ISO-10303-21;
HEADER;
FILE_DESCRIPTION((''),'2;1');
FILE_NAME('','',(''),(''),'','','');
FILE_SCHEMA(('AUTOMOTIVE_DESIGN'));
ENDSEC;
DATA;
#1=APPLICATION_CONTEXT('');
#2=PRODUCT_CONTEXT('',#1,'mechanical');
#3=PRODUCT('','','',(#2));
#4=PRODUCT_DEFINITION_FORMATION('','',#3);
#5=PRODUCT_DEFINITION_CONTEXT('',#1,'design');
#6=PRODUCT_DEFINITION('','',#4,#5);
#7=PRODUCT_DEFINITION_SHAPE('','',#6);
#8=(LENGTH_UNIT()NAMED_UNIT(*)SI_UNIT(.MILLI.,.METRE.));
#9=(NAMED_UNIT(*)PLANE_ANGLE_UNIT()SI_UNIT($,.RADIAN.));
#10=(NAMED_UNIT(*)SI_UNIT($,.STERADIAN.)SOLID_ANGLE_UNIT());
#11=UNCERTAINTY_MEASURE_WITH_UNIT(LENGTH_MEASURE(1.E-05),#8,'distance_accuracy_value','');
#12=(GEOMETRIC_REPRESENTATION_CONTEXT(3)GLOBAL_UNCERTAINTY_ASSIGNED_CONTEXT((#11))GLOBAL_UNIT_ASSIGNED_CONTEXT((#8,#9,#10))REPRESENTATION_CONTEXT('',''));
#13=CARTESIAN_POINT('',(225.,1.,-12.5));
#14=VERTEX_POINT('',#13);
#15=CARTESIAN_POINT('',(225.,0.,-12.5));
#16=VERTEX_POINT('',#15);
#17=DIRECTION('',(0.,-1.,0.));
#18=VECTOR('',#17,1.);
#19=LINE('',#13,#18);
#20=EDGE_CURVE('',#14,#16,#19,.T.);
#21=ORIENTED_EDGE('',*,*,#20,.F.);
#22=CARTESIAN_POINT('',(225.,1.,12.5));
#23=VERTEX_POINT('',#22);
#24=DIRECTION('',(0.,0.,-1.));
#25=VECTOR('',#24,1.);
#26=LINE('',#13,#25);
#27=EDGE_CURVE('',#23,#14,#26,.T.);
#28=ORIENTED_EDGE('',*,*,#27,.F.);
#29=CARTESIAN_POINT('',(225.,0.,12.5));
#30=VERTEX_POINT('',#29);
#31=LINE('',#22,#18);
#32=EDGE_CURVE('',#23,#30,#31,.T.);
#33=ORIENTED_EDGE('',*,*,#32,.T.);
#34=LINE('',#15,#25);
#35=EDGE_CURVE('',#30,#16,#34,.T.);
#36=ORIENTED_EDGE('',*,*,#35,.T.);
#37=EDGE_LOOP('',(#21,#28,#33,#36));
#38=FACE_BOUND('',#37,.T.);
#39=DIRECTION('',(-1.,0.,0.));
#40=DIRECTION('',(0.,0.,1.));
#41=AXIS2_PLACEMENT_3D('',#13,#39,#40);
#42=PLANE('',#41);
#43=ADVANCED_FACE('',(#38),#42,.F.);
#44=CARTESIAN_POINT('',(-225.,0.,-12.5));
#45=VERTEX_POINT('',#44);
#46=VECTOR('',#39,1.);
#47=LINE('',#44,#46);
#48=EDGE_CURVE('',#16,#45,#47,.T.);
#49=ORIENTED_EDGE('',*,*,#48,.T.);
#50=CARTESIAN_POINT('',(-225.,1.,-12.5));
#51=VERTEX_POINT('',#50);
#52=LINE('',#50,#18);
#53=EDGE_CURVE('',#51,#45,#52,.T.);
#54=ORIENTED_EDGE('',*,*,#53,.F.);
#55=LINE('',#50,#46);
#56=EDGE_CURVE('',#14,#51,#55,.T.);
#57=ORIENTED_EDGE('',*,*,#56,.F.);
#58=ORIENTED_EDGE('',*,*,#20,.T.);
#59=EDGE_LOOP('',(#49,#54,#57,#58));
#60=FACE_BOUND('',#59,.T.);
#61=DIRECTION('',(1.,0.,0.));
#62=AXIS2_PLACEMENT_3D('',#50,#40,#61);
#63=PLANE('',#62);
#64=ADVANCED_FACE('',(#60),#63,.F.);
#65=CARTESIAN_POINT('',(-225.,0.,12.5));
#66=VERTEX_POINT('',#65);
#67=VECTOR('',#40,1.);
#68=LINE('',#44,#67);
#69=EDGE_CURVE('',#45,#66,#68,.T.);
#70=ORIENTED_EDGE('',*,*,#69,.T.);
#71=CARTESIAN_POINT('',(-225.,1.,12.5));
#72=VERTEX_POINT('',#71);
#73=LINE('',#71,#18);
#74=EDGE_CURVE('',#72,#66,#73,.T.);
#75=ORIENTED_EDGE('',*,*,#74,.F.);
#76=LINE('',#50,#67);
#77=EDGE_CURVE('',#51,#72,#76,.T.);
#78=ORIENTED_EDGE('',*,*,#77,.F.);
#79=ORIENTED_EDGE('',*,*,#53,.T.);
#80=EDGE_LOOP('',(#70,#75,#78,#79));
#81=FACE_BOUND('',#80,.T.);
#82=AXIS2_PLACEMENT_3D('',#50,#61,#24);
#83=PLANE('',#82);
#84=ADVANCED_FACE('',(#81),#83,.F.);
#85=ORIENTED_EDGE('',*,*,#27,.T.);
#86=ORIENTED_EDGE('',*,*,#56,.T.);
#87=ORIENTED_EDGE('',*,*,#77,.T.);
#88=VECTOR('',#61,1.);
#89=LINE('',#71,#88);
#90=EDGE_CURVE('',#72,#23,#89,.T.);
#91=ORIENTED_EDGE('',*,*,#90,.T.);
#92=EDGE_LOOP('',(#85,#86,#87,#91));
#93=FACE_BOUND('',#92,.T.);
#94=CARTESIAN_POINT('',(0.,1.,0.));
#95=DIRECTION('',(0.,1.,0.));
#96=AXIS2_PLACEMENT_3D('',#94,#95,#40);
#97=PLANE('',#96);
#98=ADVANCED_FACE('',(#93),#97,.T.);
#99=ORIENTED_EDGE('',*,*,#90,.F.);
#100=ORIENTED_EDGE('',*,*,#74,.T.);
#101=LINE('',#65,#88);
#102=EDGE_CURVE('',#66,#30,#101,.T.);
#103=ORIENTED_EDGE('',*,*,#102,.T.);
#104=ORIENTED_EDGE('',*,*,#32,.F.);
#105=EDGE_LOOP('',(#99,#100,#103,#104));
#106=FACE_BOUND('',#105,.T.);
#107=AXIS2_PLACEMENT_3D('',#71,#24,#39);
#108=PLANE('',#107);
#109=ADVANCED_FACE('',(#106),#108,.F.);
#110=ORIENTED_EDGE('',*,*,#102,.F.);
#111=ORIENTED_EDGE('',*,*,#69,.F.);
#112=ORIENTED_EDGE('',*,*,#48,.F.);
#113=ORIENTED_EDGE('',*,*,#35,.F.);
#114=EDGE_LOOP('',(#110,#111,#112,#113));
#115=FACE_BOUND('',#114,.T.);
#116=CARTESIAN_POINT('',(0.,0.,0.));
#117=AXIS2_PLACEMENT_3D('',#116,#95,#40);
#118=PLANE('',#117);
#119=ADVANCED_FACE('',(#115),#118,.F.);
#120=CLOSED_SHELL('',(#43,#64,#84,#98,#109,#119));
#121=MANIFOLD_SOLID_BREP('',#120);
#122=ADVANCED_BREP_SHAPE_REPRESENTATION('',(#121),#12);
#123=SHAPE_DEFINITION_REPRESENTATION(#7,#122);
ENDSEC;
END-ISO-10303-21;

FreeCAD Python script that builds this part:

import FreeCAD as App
import Part
import Sketcher
Q = App.Units.Quantity

doc = App.newDocument("Part")
body = doc.addObject("PartDesign::Body", "Body")

# Sketch on XZ plane
sketch1 = doc.addObject("Sketcher::SketchObject", "Sketch")
body.addObject(sketch1)
sketch1.AttachmentSupport = (doc.XZ_Plane, [""])
sketch1.MapMode = "FlatFace"
sketch1.addGeometry(Part.LineSegment(App.Vector(-225, -12, 0), App.Vector(-225, 12, 0)), False)
sketch1.addGeometry(Part.LineSegment(App.Vector(-225, 12, 0), App.Vector(225, 12, 0)), False)
sketch1.addGeometry(Part.LineSegment(App.Vector(225, 12, 0), App.Vector(225, -12, 0)), False)
sketch1.addGeometry(Part.LineSegment(App.Vector(225, -12, 0), App.Vector(-225, -12, 0)), False)
sketch1.addConstraint(Sketcher.Constraint("Coincident", 0, 2, 1, 1))
sketch1.addConstraint(Sketcher.Constraint("Coincident", 1, 2, 2, 1))
sketch1.addConstraint(Sketcher.Constraint("Coincident", 2, 2, 3, 1))
sketch1.addConstraint(Sketcher.Constraint("Coincident", 3, 2, 0, 1))
sketch1.addConstraint(Sketcher.Constraint("Vertical", 0))
sketch1.addConstraint(Sketcher.Constraint("Horizontal", 1))
sketch1.addConstraint(Sketcher.Constraint("Vertical", 2))
sketch1.addConstraint(Sketcher.Constraint("Horizontal", 3))
sketch1.addConstraint(Sketcher.Constraint("Symmetric", 0, 2, 2, 2, -1, 1))
sketch1.addConstraint(Sketcher.Constraint("DistanceX", 1, 1, 1, 2, Q("450 mm")))
sketch1.addConstraint(Sketcher.Constraint("DistanceY", 0, 1, 0, 2, Q("25 mm")))
pad1 = doc.addObject("PartDesign::Pad", "Pad")
body.addObject(pad1)
pad1.Profile = sketch1
pad1.Length = 1
pad1.Reversed = True

doc.recompute()
